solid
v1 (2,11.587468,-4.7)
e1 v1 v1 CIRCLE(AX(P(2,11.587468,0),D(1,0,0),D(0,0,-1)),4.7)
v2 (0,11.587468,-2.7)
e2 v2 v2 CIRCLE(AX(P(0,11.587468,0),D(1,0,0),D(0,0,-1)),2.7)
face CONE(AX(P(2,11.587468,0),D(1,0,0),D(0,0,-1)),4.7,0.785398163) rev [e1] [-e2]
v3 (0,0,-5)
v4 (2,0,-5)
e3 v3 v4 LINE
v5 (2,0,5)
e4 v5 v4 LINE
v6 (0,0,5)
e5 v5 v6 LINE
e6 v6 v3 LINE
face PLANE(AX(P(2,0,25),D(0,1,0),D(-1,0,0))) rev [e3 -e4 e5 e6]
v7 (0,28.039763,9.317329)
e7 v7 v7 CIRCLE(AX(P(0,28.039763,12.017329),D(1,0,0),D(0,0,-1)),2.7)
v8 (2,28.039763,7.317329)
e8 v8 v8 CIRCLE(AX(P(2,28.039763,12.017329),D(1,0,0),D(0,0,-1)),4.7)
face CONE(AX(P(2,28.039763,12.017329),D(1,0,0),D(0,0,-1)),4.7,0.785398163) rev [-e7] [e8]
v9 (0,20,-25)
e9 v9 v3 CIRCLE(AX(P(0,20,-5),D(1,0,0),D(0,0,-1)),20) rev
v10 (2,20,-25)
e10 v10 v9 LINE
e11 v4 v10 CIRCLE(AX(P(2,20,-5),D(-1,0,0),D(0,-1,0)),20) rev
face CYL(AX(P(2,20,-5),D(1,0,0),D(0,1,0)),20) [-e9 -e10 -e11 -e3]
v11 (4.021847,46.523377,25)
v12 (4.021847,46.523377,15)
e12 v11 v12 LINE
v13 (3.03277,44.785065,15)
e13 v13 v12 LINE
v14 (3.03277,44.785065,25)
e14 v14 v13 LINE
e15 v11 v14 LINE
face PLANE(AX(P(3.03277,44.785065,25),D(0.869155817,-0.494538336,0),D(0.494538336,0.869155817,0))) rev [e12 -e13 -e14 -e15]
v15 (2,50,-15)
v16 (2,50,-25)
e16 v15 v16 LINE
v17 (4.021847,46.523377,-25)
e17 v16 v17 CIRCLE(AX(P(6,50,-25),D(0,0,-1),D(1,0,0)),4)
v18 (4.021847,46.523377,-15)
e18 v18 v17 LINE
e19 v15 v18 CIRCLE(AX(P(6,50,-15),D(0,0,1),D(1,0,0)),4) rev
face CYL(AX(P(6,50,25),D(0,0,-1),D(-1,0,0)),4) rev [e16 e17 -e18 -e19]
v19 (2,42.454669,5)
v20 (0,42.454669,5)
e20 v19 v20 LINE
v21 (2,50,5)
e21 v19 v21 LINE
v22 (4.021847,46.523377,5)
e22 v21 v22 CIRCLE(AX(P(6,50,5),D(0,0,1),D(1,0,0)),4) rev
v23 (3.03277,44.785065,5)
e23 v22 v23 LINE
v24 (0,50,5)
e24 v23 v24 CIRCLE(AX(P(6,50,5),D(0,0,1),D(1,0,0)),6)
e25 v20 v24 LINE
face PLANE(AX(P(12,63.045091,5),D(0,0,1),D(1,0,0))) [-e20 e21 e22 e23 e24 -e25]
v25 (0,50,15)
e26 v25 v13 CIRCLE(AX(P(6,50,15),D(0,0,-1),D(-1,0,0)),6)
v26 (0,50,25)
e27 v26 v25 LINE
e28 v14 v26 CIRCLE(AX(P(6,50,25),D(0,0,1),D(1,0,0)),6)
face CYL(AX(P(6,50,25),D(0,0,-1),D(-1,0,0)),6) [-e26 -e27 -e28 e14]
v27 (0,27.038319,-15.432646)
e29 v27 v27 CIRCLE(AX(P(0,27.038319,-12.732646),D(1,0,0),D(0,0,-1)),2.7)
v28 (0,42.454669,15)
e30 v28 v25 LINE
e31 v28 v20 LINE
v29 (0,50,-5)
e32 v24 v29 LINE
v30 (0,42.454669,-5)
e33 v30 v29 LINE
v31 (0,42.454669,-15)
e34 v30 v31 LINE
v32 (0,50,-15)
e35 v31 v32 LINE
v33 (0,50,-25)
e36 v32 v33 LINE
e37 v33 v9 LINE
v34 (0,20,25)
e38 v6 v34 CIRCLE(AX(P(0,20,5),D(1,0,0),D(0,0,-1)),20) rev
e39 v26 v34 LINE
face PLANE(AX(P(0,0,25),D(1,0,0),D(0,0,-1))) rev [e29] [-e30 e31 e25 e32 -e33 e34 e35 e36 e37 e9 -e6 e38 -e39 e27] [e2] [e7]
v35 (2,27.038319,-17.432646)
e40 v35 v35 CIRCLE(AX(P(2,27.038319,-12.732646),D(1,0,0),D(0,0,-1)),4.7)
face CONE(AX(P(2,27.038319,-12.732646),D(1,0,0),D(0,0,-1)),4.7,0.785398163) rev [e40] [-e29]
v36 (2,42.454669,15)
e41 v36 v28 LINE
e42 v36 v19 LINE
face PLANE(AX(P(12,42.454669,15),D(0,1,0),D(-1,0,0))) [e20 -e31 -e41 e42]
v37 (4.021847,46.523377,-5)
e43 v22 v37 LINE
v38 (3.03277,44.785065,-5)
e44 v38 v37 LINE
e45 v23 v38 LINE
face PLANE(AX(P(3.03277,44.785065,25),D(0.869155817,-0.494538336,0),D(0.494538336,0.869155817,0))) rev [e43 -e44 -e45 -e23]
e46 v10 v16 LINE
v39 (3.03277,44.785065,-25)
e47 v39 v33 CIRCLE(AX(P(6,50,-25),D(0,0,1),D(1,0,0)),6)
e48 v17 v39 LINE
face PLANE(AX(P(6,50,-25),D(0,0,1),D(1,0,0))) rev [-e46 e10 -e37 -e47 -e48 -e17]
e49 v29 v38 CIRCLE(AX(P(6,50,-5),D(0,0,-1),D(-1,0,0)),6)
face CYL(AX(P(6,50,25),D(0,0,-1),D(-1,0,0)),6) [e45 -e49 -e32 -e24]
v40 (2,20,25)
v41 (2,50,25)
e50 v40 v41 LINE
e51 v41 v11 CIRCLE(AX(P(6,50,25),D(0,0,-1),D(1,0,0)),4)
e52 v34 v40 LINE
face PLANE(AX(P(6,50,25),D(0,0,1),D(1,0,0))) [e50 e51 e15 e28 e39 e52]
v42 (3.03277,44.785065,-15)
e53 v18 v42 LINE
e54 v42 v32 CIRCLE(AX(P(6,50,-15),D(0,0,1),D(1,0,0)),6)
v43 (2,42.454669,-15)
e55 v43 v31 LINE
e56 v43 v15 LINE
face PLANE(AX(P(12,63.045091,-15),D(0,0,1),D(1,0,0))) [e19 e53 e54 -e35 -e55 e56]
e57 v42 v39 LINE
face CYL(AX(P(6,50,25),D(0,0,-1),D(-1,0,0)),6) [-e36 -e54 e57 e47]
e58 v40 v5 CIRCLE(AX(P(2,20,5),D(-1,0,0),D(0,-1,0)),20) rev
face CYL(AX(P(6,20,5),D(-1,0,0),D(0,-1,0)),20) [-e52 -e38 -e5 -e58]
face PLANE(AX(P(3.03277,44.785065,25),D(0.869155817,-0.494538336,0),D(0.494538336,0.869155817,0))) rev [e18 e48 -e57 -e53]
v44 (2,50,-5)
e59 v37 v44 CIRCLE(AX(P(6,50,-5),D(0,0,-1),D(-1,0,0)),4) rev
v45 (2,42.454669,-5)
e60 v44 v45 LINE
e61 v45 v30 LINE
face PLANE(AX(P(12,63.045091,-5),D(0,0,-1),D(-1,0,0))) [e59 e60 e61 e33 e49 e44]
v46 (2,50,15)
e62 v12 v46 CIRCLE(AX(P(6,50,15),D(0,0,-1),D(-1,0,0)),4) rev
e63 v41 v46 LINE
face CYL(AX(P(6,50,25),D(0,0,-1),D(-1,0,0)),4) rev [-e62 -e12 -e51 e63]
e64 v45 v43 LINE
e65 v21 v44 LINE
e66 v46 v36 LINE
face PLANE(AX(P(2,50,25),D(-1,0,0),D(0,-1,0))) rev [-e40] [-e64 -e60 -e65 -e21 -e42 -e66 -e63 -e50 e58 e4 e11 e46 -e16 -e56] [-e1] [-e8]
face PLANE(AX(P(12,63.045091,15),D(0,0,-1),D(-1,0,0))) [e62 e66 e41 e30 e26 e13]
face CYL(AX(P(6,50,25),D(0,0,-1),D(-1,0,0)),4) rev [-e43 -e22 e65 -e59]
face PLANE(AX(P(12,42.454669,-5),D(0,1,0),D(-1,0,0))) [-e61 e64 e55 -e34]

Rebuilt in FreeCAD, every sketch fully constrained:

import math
import FreeCAD as App
import Part
import Sketcher
from FreeCAD import Vector
Q = App.Units.Quantity


def edges_at(feature, points):
    """Names of the edges that pass closest to the given points."""
    edges = feature.Shape.Edges
    near = lambda p: min(range(len(edges)), key=lambda i: edges[i].distToShape(Part.Vertex(*p))[0])
    return sorted({f"Edge{near(p) + 1}" for p in points})


def add_polygon(sketch, points):
    """Adds a closed chain of lines whose ends are joined by coincident constraints."""
    first, n = sketch.GeometryCount, len(points)
    for a, b in zip(points, points[1:] + points[:1]):
        sketch.addGeometry(Part.LineSegment(App.Vector(*a, 0), App.Vector(*b, 0)), False)
    for i in range(n):
        sketch.addConstraint(Sketcher.Constraint("Coincident", first + i, 2, first + (i + 1) % n, 1))

doc = App.newDocument("Part")
body = doc.addObject("PartDesign::Body", "Body")

sketch1 = body.newObject("Sketcher::SketchObject", "Sketch")
sketch1.AttachmentSupport = (doc.getObject("XY_Plane"), [""])
sketch1.MapMode = "FlatFace"
sketch1.addGeometry([
    Part.LineSegment(Vector(0, 50, 0), Vector(0, 0, 0)),
    Part.LineSegment(Vector(0, 0, 0), Vector(2, 0, 0)),
    Part.LineSegment(Vector(2, 0, 0), Vector(2, 50, 0)),
    Part.ArcOfCircle(Part.Circle(Vector(6, 50, 0), Vector(0, 0, 1), 4), math.radians(-119.639312), math.radians(180)),
    Part.LineSegment(Vector(4.021847, 46.523377, 0), Vector(3.03277, 44.785065, 0)),
    Part.ArcOfCircle(Part.Circle(Vector(6, 50, 0), Vector(0, 0, 1), 6), math.radians(-119.639312), math.radians(180)),
], False)
sketch1.addConstraint([
    Sketcher.Constraint("Coincident", 0, 2, 1, 1),
    Sketcher.Constraint("Coincident", 1, 2, 2, 1),
    Sketcher.Constraint("Tangent", 2, 2, 3, 2),
    Sketcher.Constraint("Coincident", 3, 1, 4, 1),
    Sketcher.Constraint("Coincident", 4, 2, 5, 1),
    Sketcher.Constraint("Tangent", 5, 2, 0, 1),
    Sketcher.Constraint("Vertical", 0),
    Sketcher.Constraint("Horizontal", 1),
    Sketcher.Constraint("Vertical", 2),
    Sketcher.Constraint("Coincident", 0, 2, -1, 1),
    Sketcher.Constraint("Coincident", 5, 3, 3, 3),
    Sketcher.Constraint("Radius", 3, Q("4 mm")),
    Sketcher.Constraint("Radius", 5, Q("6 mm")),
    Sketcher.Constraint("DistanceY", 0, 2, 0, 1, Q("50 mm")),
    Sketcher.Constraint("DistanceX", -1, 1, 4, 2, Q("3.03277 mm")),
    Sketcher.Constraint("DistanceY", 4, 2, 3, 1, Q("1.738312 mm")),
])
pad1 = body.newObject("PartDesign::Pad", "Pad")
pad1.Profile = sketch1
pad1.Length = 50
pad1.Midplane = True

sketch2 = body.newObject("Sketcher::SketchObject", "Sketch001")
sketch2.AttachmentSupport = (doc.getObject("YZ_Plane"), [""])
sketch2.MapMode = "FlatFace"
sketch2.AttachmentOffset = App.Placement(Vector(0, 0, 2), App.Rotation())
add_polygon(sketch2, [(63.045091, 15), (42.454669, 15), (42.454669, 5), (63.045091, 5)])
add_polygon(sketch2, [(63.045091, -5), (42.454669, -5), (42.454669, -15), (63.045091, -15)])
sketch2.addConstraint([
    Sketcher.Constraint("Horizontal", 0),
    Sketcher.Constraint("Vertical", 1),
    Sketcher.Constraint("Horizontal", 2),
    Sketcher.Constraint("Vertical", 3),
    Sketcher.Constraint("Horizontal", 4),
    Sketcher.Constraint("Vertical", 5),
    Sketcher.Constraint("Horizontal", 6),
    Sketcher.Constraint("Vertical", 7),
    Sketcher.Constraint("Symmetric", 1, 2, 4, 2, -1),
    Sketcher.Constraint("Symmetric", 3, 2, 6, 2, -1),
    Sketcher.Constraint("DistanceY", 1, 2, 1, 1, Q("10 mm")),
    Sketcher.Constraint("DistanceY", -1, 1, 0, 2, Q("15 mm")),
    Sketcher.Constraint("DistanceX", 0, 2, 0, 1, Q("20.590422 mm")),
    Sketcher.Constraint("DistanceX", -1, 1, 0, 2, Q("42.454669 mm")),
])
pocket1 = body.newObject("PartDesign::Pocket", "Pocket")
pocket1.Profile = sketch2
pocket1.Type = "ThroughAll"
pocket1.Midplane = True
doc.recompute()

fillet = body.newObject("PartDesign::Fillet", "Fillet")
fillet.Base = (pocket1, edges_at(pocket1, [(1, 0, 25), (1, 0, -25)]))
fillet.Radius = 20

sketch3 = body.newObject("Sketcher::SketchObject", "Sketch002")
sketch3.AttachmentSupport = (doc.getObject("XZ_Plane"), [""])
sketch3.MapMode = "FlatFace"
sketch3.AttachmentOffset = App.Placement(Vector(0, 0, -11.587468), App.Rotation())
add_polygon(sketch3, [(0, 0), (2, 0), (2, -4.7), (-0.45, -2.25), (0, -2.25)])
sketch3.addConstraint([
    Sketcher.Constraint("Horizontal", 0),
    Sketcher.Constraint("Vertical", 1),
    Sketcher.Constraint("Horizontal", 3),
    Sketcher.Constraint("Vertical", 4),
    Sketcher.Constraint("Coincident", 4, 2, -1, 1),
    Sketcher.Constraint("DistanceX", 0, 1, 0, 2, Q("2 mm")),
    Sketcher.Constraint("Angle", 2, Q("135 deg")),
    Sketcher.Constraint("DistanceY", 1, 2, 1, 1, Q("4.7 mm")),
    Sketcher.Constraint("DistanceX", 3, 1, 3, 2, Q("0.45 mm")),
])
groove = body.newObject("PartDesign::Groove", "Groove")
groove.Profile = sketch3
groove.ReferenceAxis = (sketch3, ["H_Axis"])
groove.Angle = 360
doc.recompute()

datumline = body.newObject("PartDesign::Line", "DatumLine")
datumline.Placement = App.Placement(Vector(0, 0, 0), App.Rotation(Vector(0, 0, 1), Vector(0, 0.807519759, 0.58984052)))
linearpattern = body.newObject("PartDesign::LinearPattern", "LinearPattern")
linearpattern.Originals = [groove]
linearpattern.Direction = (datumline, [""])
linearpattern.Mode = "offset"
linearpattern.Offset = 20.373861
linearpattern.Occurrences = 2
body.Tip = linearpattern
doc.recompute()

datumline2 = body.newObject("PartDesign::Line", "DatumLine001")
datumline2.Placement = App.Placement(Vector(0, 0, 0), App.Rotation(Vector(0, 0, 1), Vector(0, 0.771723931, -0.635957683)))
linearpattern2 = body.newObject("PartDesign::LinearPattern", "LinearPattern001")
linearpattern2.Originals = [groove]
linearpattern2.Direction = (datumline2, [""])
linearpattern2.Mode = "offset"
linearpattern2.Offset = 20.021215
linearpattern2.Occurrences = 2
body.Tip = linearpattern2

doc.recompute()
